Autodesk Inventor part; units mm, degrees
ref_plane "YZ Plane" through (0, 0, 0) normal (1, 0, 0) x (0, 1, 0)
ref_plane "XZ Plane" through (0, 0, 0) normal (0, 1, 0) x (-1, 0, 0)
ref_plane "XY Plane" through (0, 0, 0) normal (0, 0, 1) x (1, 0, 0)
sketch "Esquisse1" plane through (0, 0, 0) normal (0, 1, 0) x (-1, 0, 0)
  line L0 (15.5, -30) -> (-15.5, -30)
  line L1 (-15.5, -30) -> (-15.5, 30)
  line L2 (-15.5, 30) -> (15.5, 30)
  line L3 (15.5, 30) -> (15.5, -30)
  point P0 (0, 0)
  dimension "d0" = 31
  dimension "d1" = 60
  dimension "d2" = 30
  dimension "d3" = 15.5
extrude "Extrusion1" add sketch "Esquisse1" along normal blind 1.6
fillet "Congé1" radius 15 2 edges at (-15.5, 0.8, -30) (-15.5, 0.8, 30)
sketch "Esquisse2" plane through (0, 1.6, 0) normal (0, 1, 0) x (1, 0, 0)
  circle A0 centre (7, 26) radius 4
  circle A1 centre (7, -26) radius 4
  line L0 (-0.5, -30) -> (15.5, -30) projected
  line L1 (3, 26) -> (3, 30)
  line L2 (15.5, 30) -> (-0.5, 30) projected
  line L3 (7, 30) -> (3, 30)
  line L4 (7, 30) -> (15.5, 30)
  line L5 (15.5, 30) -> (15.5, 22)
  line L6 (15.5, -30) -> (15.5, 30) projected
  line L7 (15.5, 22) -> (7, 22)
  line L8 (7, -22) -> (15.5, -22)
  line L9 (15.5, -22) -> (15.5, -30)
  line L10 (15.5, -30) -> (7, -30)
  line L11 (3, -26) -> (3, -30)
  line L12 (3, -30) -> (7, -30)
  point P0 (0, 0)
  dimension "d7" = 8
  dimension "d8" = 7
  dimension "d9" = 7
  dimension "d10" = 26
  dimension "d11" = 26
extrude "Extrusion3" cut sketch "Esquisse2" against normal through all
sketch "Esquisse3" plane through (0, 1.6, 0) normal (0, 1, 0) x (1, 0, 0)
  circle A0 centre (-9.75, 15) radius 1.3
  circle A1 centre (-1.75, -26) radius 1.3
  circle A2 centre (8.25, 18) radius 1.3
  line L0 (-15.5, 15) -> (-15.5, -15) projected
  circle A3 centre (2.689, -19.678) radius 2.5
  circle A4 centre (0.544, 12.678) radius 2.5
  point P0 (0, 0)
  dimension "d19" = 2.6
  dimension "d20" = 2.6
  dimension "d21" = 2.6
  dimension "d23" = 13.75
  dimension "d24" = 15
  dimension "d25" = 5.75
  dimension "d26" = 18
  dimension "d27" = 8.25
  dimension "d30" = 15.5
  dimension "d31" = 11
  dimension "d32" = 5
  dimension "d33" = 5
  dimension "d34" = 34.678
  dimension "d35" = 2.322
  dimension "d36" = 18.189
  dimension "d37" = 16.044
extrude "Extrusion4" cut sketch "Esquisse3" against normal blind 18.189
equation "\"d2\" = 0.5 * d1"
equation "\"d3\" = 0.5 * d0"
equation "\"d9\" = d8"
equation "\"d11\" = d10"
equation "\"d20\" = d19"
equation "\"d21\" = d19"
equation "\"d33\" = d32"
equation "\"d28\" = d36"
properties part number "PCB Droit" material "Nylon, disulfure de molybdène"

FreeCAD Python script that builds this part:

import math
import FreeCAD as App
import Part
import Sketcher
Q = App.Units.Quantity


def edges_at(feature, points):
    """Names of the edges that pass closest to the given points."""
    edges = feature.Shape.Edges
    near = lambda p: min(range(len(edges)), key=lambda i: edges[i].distToShape(Part.Vertex(*p))[0])
    return sorted({f"Edge{near(p) + 1}" for p in points})

doc = App.newDocument("Part")
params = doc.addObject("Spreadsheet::Sheet", "Params")
for row, (alias, value) in enumerate([
    ("sketch1_width", "31 mm"),
    ("sketch1_height", "60 mm"),
    ("pad1_length", "1.6 mm"),
    ("fillet_radius", "15 mm"),
    ("sketch2_radius", "4 mm"),
    ("sketch2_height", "8 mm"),
    ("sketch2_width", "8.5 mm"),
    ("sketch3_diameter", "5 mm"),
    ("sketch3_diameter2", "2.6 mm"),
    ("pocket2_length", "18.189 mm"),
], start=1):
    params.set(f"A{row}", alias)
    params.set(f"B{row}", "=" + value)
    params.setAlias(f"B{row}", alias)

body = doc.addObject("PartDesign::Body", "Body")

# Sketch on XZ plane
sketch1 = body.newObject("Sketcher::SketchObject", "Sketch")
sketch1.AttachmentSupport = (doc.getObject("XZ_Plane"), [""])
sketch1.MapMode = "FlatFace"
sketch1.addGeometry(Part.LineSegment(App.Vector(15.5, -30, 0), App.Vector(-15.5, -30, 0)), False)
sketch1.addGeometry(Part.LineSegment(App.Vector(-15.5, -30, 0), App.Vector(-15.5, 30, 0)), False)
sketch1.addGeometry(Part.LineSegment(App.Vector(-15.5, 30, 0), App.Vector(15.5, 30, 0)), False)
sketch1.addGeometry(Part.LineSegment(App.Vector(15.5, 30, 0), App.Vector(15.5, -30, 0)), False)
sketch1.addConstraint(Sketcher.Constraint("Coincident", 0, 2, 1, 1))
sketch1.addConstraint(Sketcher.Constraint("Coincident", 1, 2, 2, 1))
sketch1.addConstraint(Sketcher.Constraint("Coincident", 2, 2, 3, 1))
sketch1.addConstraint(Sketcher.Constraint("Coincident", 3, 2, 0, 1))
sketch1.addConstraint(Sketcher.Constraint("Horizontal", 0))
sketch1.addConstraint(Sketcher.Constraint("Vertical", 1))
sketch1.addConstraint(Sketcher.Constraint("Horizontal", 2))
sketch1.addConstraint(Sketcher.Constraint("Vertical", 3))
sketch1.addConstraint(Sketcher.Constraint("Symmetric", 0, 2, 2, 2, -1, 1))
sketch1.addConstraint(Sketcher.Constraint("DistanceX", 0, 2, 0, 1, Q("31 mm")))
sketch1.addConstraint(Sketcher.Constraint("DistanceY", 1, 1, 1, 2, Q("60 mm")))
sketch1.setExpression("Constraints[9]", "Params.sketch1_width")
sketch1.setExpression("Constraints[10]", "Params.sketch1_height")
pad1 = body.newObject("PartDesign::Pad", "Pad")
pad1.Profile = sketch1
pad1.setExpression("Length", "Params.pad1_length")
pad1.Reversed = True
doc.recompute()

fillet = body.newObject("PartDesign::Fillet", "Fillet")
fillet.Base = (pad1, edges_at(pad1, [(-15.5, 0.8, -30), (-15.5, 0.8, 30)]))
fillet.setExpression("Radius", "Params.fillet_radius")

# Sketch on XZ plane
sketch2 = body.newObject("Sketcher::SketchObject", "Sketch001")
sketch2.AttachmentSupport = (doc.getObject("XZ_Plane"), [""])
sketch2.MapMode = "FlatFace"
sketch2.AttachmentOffset = App.Placement(App.Vector(0, 0, -1.6), App.Rotation())
sketch2.addGeometry(Part.ArcOfCircle(Part.Circle(App.Vector(7, -26, 0), App.Vector(0, 0, 1), 4), math.radians(90), math.radians(180)), False)
sketch2.addGeometry(Part.LineSegment(App.Vector(7, -22, 0), App.Vector(15.5, -22, 0)), False)
sketch2.addGeometry(Part.LineSegment(App.Vector(15.5, -22, 0), App.Vector(15.5, -30, 0)), False)
sketch2.addGeometry(Part.LineSegment(App.Vector(15.5, -30, 0), App.Vector(3, -30, 0)), False)
sketch2.addGeometry(Part.LineSegment(App.Vector(3, -30, 0), App.Vector(3, -26, 0)), False)
sketch2.addGeometry(Part.LineSegment(App.Vector(15.5, 30, 0), App.Vector(15.5, 22, 0)), False)
sketch2.addGeometry(Part.LineSegment(App.Vector(15.5, 22, 0), App.Vector(7, 22, 0)), False)
sketch2.addGeometry(Part.ArcOfCircle(Part.Circle(App.Vector(7, 26, 0), App.Vector(0, 0, 1), 4), math.radians(180), math.radians(270)), False)
sketch2.addGeometry(Part.LineSegment(App.Vector(3, 26, 0), App.Vector(3, 30, 0)), False)
sketch2.addGeometry(Part.LineSegment(App.Vector(3, 30, 0), App.Vector(15.5, 30, 0)), False)
sketch2.addConstraint(Sketcher.Constraint("Tangent", 0, 1, 1, 1))
sketch2.addConstraint(Sketcher.Constraint("Coincident", 1, 2, 2, 1))
sketch2.addConstraint(Sketcher.Constraint("Coincident", 2, 2, 3, 1))
sketch2.addConstraint(Sketcher.Constraint("Coincident", 3, 2, 4, 1))
sketch2.addConstraint(Sketcher.Constraint("Tangent", 4, 2, 0, 2))
sketch2.addConstraint(Sketcher.Constraint("Coincident", 5, 2, 6, 1))
sketch2.addConstraint(Sketcher.Constraint("Tangent", 6, 2, 7, 2))
sketch2.addConstraint(Sketcher.Constraint("Tangent", 7, 1, 8, 1))
sketch2.addConstraint(Sketcher.Constraint("Coincident", 8, 2, 9, 1))
sketch2.addConstraint(Sketcher.Constraint("Coincident", 9, 2, 5, 1))
sketch2.addConstraint(Sketcher.Constraint("Horizontal", 1))
sketch2.addConstraint(Sketcher.Constraint("Vertical", 2))
sketch2.addConstraint(Sketcher.Constraint("Horizontal", 3))
sketch2.addConstraint(Sketcher.Constraint("Vertical", 4))
sketch2.addConstraint(Sketcher.Constraint("Vertical", 5))
sketch2.addConstraint(Sketcher.Constraint("Horizontal", 6))
sketch2.addConstraint(Sketcher.Constraint("Vertical", 8))
sketch2.addConstraint(Sketcher.Constraint("Horizontal", 9))
sketch2.addConstraint(Sketcher.Constraint("Equal", 0, 7))
sketch2.addConstraint(Sketcher.Constraint("Symmetric", 0, 3, 7, 3, -1))
sketch2.addConstraint(Sketcher.Constraint("Symmetric", 2, 2, 9, 2, -1))
sketch2.addConstraint(Sketcher.Constraint("Radius", 0, Q("4 mm")))
sketch2.addConstraint(Sketcher.Constraint("DistanceY", 2, 2, 2, 1, Q("8 mm")))
sketch2.addConstraint(Sketcher.Constraint("DistanceX", -1, 1, 0, 3, Q("7 mm")))
sketch2.addConstraint(Sketcher.Constraint("DistanceY", 0, 3, -1, 1, Q("26 mm")))
sketch2.addConstraint(Sketcher.Constraint("DistanceX", 1, 1, 1, 2, Q("8.5 mm")))
sketch2.setExpression("Constraints[21]", "Params.sketch2_radius")
sketch2.setExpression("Constraints[22]", "Params.sketch2_height")
sketch2.setExpression("Constraints[25]", "Params.sketch2_width")
pocket1 = body.newObject("PartDesign::Pocket", "Pocket")
pocket1.Profile = sketch2
pocket1.Type = "ThroughAll"
pocket1.Reversed = True

# Sketch on XZ plane
sketch3 = body.newObject("Sketcher::SketchObject", "Sketch002")
sketch3.AttachmentSupport = (doc.getObject("XZ_Plane"), [""])
sketch3.MapMode = "FlatFace"
sketch3.AttachmentOffset = App.Placement(App.Vector(0, 0, -1.6), App.Rotation())
sketch3.addGeometry(Part.Circle(App.Vector(-9.75, -15, 0), App.Vector(0, 0, 1), 1.3), False)
sketch3.addGeometry(Part.Circle(App.Vector(-1.75, 26, 0), App.Vector(0, 0, 1), 1.3), False)
sketch3.addGeometry(Part.Circle(App.Vector(8.25, -18, 0), App.Vector(0, 0, 1), 1.3), False)
sketch3.addGeometry(Part.Circle(App.Vector(2.689, 19.678, 0), App.Vector(0, 0, 1), 2.5), False)
sketch3.addGeometry(Part.Circle(App.Vector(0.544, -12.678, 0), App.Vector(0, 0, 1), 2.5), False)
sketch3.addConstraint(Sketcher.Constraint("Equal", 0, 1))
sketch3.addConstraint(Sketcher.Constraint("Equal", 1, 2))
sketch3.addConstraint(Sketcher.Constraint("Equal", 3, 4))
sketch3.addConstraint(Sketcher.Constraint("Diameter", 3, Q("5 mm")))
sketch3.addConstraint(Sketcher.Constraint("Diameter", 0, Q("2.6 mm")))
sketch3.addConstraint(Sketcher.Constraint("DistanceY", 0, 3, -1, 1, Q("15 mm")))
sketch3.addConstraint(Sketcher.Constraint("DistanceY", 2, 3, -1, 1, Q("18 mm")))
sketch3.addConstraint(Sketcher.Constraint("DistanceX", 0, 3, 2, 3, Q("18 mm")))
sketch3.addConstraint(Sketcher.Constraint("DistanceX", -1, 1, 2, 3, Q("8.25 mm")))
sketch3.addConstraint(Sketcher.Constraint("DistanceY", -1, 1, 1, 3, Q("26 mm")))
sketch3.addConstraint(Sketcher.Constraint("DistanceX", 0, 3, 1, 3, Q("8 mm")))
sketch3.addConstraint(Sketcher.Constraint("DistanceY", 0, 3, 3, 3, Q("34.678 mm")))
sketch3.addConstraint(Sketcher.Constraint("DistanceY", 0, 3, 4, 3, Q("2.322 mm")))
sketch3.addConstraint(Sketcher.Constraint("DistanceX", -1, 1, 3, 3, Q("2.689 mm")))
sketch3.addConstraint(Sketcher.Constraint("DistanceX", -1, 1, 4, 3, Q("0.544 mm")))
sketch3.setExpression("Constraints[3]", "Params.sketch3_diameter")
sketch3.setExpression("Constraints[4]", "Params.sketch3_diameter2")
pocket2 = body.newObject("PartDesign::Pocket", "Pocket001")
pocket2.Profile = sketch3
pocket2.setExpression("Length", "Params.pocket2_length")
pocket2.Reversed = True

doc.recompute()
